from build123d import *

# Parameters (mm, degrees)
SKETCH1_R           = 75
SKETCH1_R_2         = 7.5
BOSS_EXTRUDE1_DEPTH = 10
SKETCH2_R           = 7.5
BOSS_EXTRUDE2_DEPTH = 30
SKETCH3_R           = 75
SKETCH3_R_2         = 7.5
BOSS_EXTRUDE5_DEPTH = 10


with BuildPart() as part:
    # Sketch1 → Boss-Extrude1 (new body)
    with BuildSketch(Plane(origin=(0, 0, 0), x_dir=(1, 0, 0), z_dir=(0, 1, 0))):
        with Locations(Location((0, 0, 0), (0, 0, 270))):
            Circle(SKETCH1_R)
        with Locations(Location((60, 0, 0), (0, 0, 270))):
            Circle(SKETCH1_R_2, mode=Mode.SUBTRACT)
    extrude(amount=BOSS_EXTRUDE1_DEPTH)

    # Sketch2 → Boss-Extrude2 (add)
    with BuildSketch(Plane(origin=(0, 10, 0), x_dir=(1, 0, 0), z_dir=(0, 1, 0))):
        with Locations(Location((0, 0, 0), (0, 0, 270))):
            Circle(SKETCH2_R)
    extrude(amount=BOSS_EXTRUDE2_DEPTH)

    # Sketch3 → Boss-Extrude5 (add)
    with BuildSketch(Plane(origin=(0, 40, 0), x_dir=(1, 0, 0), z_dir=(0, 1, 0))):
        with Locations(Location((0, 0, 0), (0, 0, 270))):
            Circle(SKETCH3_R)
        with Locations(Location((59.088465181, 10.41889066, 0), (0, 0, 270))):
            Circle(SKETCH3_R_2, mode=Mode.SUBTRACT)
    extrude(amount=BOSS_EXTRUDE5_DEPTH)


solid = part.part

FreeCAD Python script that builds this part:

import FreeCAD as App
import Part
import Sketcher
from FreeCAD import Vector
Q = App.Units.Quantity

doc = App.newDocument("Part")
body = doc.addObject("PartDesign::Body", "Body")

sketch1 = body.newObject("Sketcher::SketchObject", "Sketch")
sketch1.AttachmentSupport = (doc.getObject("XZ_Plane"), [""])
sketch1.MapMode = "FlatFace"
sketch1.addGeometry([
    Part.Circle(Vector(0, 0, 0), Vector(0, 0, 1), 75),
    Part.Circle(Vector(60, 0, 0), Vector(0, 0, 1), 8),
], False)
sketch1.addConstraint([
    Sketcher.Constraint("Coincident", 0, 3, -1, 1),
    Sketcher.Constraint("PointOnObject", 1, 3, -1),
    Sketcher.Constraint("Diameter", 0, Q("150 mm")),
    Sketcher.Constraint("Diameter", 1, Q("15 mm")),
    Sketcher.Constraint("DistanceX", -1, 1, 1, 3, Q("60 mm")),
])
pad1 = body.newObject("PartDesign::Pad", "Pad")
pad1.Profile = sketch1
pad1.Length = 10
pad1.Reversed = True

sketch2 = body.newObject("Sketcher::SketchObject", "Sketch001")
sketch2.AttachmentSupport = (doc.getObject("XZ_Plane"), [""])
sketch2.MapMode = "FlatFace"
sketch2.AttachmentOffset = App.Placement(Vector(0, 0, -10), App.Rotation())
sketch2.addGeometry(Part.Circle(Vector(0, 0, 0), Vector(0, 0, 1), 8), False)
sketch2.addConstraint([
    Sketcher.Constraint("Coincident", 0, 3, -1, 1),
    Sketcher.Constraint("Diameter", 0, Q("15 mm")),
])
pad2 = body.newObject("PartDesign::Pad", "Pad001")
pad2.Profile = sketch2
pad2.Length = 30
pad2.Reversed = True

sketch3 = body.newObject("Sketcher::SketchObject", "Sketch002")
sketch3.AttachmentSupport = (doc.getObject("XZ_Plane"), [""])
sketch3.MapMode = "FlatFace"
sketch3.AttachmentOffset = App.Placement(Vector(0, 0, -40), App.Rotation())
sketch3.addGeometry([
    Part.Circle(Vector(0, 0, 0), Vector(0, 0, 1), 75),
    Part.Circle(Vector(59, -10, 0), Vector(0, 0, 1), 8),
], False)
sketch3.addConstraint([
    Sketcher.Constraint("Coincident", 0, 3, -1, 1),
    Sketcher.Constraint("Diameter", 0, Q("150 mm")),
    Sketcher.Constraint("Diameter", 1, Q("15 mm")),
    Sketcher.Constraint("DistanceY", 1, 3, -1, 1, Q("10.418891 mm")),
    Sketcher.Constraint("DistanceX", -1, 1, 1, 3, Q("59.088465 mm")),
])
pad3 = body.newObject("PartDesign::Pad", "Pad002")
pad3.Profile = sketch3
pad3.Length = 10
pad3.Reversed = True

doc.recompute()
